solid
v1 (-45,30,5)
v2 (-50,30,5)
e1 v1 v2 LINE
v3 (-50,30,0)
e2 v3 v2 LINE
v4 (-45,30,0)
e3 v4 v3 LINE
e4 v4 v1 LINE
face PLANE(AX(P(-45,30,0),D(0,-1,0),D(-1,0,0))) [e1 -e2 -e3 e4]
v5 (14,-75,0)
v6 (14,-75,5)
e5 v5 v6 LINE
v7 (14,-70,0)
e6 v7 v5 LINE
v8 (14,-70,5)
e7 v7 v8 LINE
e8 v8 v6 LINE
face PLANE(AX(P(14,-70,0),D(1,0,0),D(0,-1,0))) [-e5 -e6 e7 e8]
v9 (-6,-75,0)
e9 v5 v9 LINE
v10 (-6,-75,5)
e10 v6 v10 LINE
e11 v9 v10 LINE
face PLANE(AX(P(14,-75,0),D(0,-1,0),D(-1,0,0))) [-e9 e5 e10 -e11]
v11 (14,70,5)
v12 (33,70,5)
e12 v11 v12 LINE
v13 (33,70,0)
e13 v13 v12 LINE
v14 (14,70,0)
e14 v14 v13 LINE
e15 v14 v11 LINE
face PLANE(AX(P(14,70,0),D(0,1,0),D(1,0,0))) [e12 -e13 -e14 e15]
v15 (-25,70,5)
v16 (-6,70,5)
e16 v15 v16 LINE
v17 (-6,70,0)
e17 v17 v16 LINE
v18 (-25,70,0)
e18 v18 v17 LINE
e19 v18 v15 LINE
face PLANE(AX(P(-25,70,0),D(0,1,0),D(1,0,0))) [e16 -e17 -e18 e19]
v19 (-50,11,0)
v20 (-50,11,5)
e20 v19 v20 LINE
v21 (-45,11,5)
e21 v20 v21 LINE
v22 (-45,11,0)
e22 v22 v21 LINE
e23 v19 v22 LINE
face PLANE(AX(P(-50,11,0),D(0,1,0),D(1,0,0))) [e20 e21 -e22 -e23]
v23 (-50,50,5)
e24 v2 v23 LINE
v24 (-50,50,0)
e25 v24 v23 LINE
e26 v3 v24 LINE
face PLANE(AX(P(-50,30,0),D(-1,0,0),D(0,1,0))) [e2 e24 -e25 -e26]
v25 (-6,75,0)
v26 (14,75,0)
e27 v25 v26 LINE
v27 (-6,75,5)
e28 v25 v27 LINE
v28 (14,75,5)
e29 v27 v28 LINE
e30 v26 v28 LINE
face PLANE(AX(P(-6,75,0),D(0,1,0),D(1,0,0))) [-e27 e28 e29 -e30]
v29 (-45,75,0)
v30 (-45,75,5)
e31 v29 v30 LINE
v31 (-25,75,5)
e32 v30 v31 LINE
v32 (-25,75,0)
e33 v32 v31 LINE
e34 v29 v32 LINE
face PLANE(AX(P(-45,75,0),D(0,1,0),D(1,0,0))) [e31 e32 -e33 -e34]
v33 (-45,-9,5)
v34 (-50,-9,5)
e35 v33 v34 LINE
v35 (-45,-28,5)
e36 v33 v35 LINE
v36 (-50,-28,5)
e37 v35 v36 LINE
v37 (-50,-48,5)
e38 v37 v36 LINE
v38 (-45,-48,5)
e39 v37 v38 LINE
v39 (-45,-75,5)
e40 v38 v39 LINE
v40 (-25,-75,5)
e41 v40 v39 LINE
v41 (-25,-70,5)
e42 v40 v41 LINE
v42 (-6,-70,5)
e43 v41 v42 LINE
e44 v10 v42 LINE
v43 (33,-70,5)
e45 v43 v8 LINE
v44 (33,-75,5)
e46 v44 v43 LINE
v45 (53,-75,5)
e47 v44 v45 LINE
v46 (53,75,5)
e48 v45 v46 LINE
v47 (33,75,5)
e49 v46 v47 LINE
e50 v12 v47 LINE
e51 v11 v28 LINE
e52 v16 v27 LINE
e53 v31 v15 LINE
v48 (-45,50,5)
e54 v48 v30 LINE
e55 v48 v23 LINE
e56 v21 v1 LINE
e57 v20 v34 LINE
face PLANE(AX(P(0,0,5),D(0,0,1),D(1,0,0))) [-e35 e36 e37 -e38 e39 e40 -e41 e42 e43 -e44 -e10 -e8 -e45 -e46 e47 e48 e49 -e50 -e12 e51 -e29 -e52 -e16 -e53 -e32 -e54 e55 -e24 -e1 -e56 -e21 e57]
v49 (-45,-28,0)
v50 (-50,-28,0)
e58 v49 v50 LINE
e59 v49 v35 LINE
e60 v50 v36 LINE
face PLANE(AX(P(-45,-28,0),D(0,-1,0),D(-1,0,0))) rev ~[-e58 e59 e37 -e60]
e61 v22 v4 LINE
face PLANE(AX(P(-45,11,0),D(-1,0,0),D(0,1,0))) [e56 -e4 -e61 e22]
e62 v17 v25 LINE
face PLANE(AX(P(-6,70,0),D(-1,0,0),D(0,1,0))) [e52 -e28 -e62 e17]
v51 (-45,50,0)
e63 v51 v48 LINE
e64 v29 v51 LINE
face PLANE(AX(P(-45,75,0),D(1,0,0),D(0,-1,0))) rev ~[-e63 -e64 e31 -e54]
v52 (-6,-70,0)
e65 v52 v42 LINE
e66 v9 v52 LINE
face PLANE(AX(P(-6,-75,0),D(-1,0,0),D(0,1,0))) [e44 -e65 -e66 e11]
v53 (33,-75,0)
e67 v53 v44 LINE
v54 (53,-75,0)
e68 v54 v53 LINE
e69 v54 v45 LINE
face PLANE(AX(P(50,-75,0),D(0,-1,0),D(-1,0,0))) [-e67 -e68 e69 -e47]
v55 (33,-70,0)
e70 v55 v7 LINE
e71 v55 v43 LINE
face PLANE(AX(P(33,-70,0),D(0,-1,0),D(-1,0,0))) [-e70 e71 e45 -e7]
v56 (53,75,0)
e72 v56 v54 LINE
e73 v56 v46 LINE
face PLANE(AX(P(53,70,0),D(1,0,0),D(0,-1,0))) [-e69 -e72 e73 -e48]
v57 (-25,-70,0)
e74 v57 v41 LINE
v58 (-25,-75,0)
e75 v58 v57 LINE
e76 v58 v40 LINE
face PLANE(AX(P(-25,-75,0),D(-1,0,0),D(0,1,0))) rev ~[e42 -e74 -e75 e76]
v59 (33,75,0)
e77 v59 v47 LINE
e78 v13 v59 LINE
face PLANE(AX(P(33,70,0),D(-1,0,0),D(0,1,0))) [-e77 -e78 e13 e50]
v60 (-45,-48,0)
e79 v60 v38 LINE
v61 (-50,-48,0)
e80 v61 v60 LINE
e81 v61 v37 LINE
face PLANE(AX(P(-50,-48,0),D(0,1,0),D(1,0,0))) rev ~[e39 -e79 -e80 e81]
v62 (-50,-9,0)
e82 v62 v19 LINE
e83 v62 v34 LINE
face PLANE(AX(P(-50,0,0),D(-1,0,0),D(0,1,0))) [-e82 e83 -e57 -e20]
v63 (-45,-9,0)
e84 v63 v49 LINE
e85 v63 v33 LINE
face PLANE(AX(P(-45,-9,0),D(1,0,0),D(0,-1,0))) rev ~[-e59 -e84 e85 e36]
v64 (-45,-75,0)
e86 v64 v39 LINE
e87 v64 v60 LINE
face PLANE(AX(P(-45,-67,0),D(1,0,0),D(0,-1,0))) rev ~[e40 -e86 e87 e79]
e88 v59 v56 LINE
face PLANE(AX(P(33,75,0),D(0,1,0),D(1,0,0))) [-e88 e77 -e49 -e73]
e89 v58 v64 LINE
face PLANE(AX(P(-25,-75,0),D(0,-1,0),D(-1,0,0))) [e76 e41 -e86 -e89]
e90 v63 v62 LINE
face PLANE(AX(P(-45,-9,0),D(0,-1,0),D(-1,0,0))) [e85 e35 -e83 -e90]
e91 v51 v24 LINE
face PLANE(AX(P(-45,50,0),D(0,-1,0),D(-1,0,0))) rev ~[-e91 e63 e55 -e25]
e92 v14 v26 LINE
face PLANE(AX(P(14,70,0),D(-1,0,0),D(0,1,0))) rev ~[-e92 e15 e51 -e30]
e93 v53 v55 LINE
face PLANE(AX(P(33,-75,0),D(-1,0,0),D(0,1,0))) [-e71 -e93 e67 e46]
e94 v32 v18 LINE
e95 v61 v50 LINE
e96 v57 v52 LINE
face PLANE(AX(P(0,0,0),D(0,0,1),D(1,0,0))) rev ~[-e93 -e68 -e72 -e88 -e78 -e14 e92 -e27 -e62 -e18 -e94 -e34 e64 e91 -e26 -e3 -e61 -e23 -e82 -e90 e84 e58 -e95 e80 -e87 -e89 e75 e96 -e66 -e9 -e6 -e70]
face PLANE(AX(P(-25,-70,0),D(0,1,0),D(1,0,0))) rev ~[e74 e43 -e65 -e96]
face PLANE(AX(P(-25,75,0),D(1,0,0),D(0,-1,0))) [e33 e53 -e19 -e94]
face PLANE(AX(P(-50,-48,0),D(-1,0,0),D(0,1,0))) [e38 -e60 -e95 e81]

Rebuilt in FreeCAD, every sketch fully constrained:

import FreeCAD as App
import Part
import Sketcher

V = App.Vector

doc = App.newDocument("Part")
body = doc.addObject("PartDesign::Body", "Body")

sketch1 = body.newObject("Sketcher::SketchObject", "Sketch")
sketch1.AttachmentSupport = (doc.getObject("XY_Plane"), [""])
sketch1.MapMode = "FlatFace"
sketch1.addGeometry([
    Part.LineSegment(V(-25, 75, 0), V(-45, 75, 0)),
    Part.LineSegment(V(-45, 75, 0), V(-45, 50, 0)),
    Part.LineSegment(V(-45, 50, 0), V(-50, 50, 0)),
    Part.LineSegment(V(-50, 50, 0), V(-50, 30, 0)),
    Part.LineSegment(V(-50, 30, 0), V(-45, 30, 0)),
    Part.LineSegment(V(-45, 30, 0), V(-45, 11, 0)),
    Part.LineSegment(V(-45, 11, 0), V(-50, 11, 0)),
    Part.LineSegment(V(-50, 11, 0), V(-50, -9, 0)),
    Part.LineSegment(V(-50, -9, 0), V(-45, -9, 0)),
    Part.LineSegment(V(-45, -9, 0), V(-45, -28, 0)),
    Part.LineSegment(V(-45, -28, 0), V(-50, -28, 0)),
    Part.LineSegment(V(-50, -28, 0), V(-50, -48, 0)),
    Part.LineSegment(V(-50, -48, 0), V(-45, -48, 0)),
    Part.LineSegment(V(-45, -48, 0), V(-45, -75, 0)),
    Part.LineSegment(V(-45, -75, 0), V(-25, -75, 0)),
    Part.LineSegment(V(-25, -75, 0), V(-25, -70, 0)),
    Part.LineSegment(V(-25, -70, 0), V(-6, -70, 0)),
    Part.LineSegment(V(-6, -70, 0), V(-6, -75, 0)),
    Part.LineSegment(V(-6, -75, 0), V(14, -75, 0)),
    Part.LineSegment(V(14, -75, 0), V(14, -70, 0)),
    Part.LineSegment(V(14, -70, 0), V(33, -70, 0)),
    Part.LineSegment(V(33, -70, 0), V(33, -75, 0)),
    Part.LineSegment(V(33, -75, 0), V(53, -75, 0)),
    Part.LineSegment(V(53, -75, 0), V(53, 75, 0)),
    Part.LineSegment(V(53, 75, 0), V(33, 75, 0)),
    Part.LineSegment(V(33, 75, 0), V(33, 70, 0)),
    Part.LineSegment(V(33, 70, 0), V(14, 70, 0)),
    Part.LineSegment(V(14, 70, 0), V(14, 75, 0)),
    Part.LineSegment(V(14, 75, 0), V(-6, 75, 0)),
    Part.LineSegment(V(-6, 75, 0), V(-6, 70, 0)),
    Part.LineSegment(V(-6, 70, 0), V(-25, 70, 0)),
    Part.LineSegment(V(-25, 70, 0), V(-25, 75, 0)),
], False)
sketch1.addConstraint([
    Sketcher.Constraint("Coincident", 0, 2, 1, 1),
    Sketcher.Constraint("Coincident", 1, 2, 2, 1),
    Sketcher.Constraint("Coincident", 2, 2, 3, 1),
    Sketcher.Constraint("Coincident", 3, 2, 4, 1),
    Sketcher.Constraint("Coincident", 4, 2, 5, 1),
    Sketcher.Constraint("Coincident", 5, 2, 6, 1),
    Sketcher.Constraint("Coincident", 6, 2, 7, 1),
    Sketcher.Constraint("Coincident", 7, 2, 8, 1),
    Sketcher.Constraint("Coincident", 8, 2, 9, 1),
    Sketcher.Constraint("Coincident", 9, 2, 10, 1),
    Sketcher.Constraint("Coincident", 10, 2, 11, 1),
    Sketcher.Constraint("Coincident", 11, 2, 12, 1),
    Sketcher.Constraint("Coincident", 12, 2, 13, 1),
    Sketcher.Constraint("Coincident", 13, 2, 14, 1),
    Sketcher.Constraint("Coincident", 14, 2, 15, 1),
    Sketcher.Constraint("Coincident", 15, 2, 16, 1),
    Sketcher.Constraint("Coincident", 16, 2, 17, 1),
    Sketcher.Constraint("Coincident", 17, 2, 18, 1),
    Sketcher.Constraint("Coincident", 18, 2, 19, 1),
    Sketcher.Constraint("Coincident", 19, 2, 20, 1),
    Sketcher.Constraint("Coincident", 20, 2, 21, 1),
    Sketcher.Constraint("Coincident", 21, 2, 22, 1),
    Sketcher.Constraint("Coincident", 22, 2, 23, 1),
    Sketcher.Constraint("Coincident", 23, 2, 24, 1),
    Sketcher.Constraint("Coincident", 24, 2, 25, 1),
    Sketcher.Constraint("Coincident", 25, 2, 26, 1),
    Sketcher.Constraint("Coincident", 26, 2, 27, 1),
    Sketcher.Constraint("Coincident", 27, 2, 28, 1),
    Sketcher.Constraint("Coincident", 28, 2, 29, 1),
    Sketcher.Constraint("Coincident", 29, 2, 30, 1),
    Sketcher.Constraint("Coincident", 30, 2, 31, 1),
    Sketcher.Constraint("Coincident", 31, 2, 0, 1),
    Sketcher.Constraint("Horizontal", 0),
    Sketcher.Constraint("Vertical", 1),
    Sketcher.Constraint("Horizontal", 2),
    Sketcher.Constraint("Vertical", 3),
    Sketcher.Constraint("Horizontal", 4),
    Sketcher.Constraint("Vertical", 5),
    Sketcher.Constraint("Horizontal", 6),
    Sketcher.Constraint("Vertical", 7),
    Sketcher.Constraint("Horizontal", 8),
    Sketcher.Constraint("Vertical", 9),
    Sketcher.Constraint("Horizontal", 10),
    Sketcher.Constraint("Vertical", 11),
    Sketcher.Constraint("Horizontal", 12),
    Sketcher.Constraint("Vertical", 13),
    Sketcher.Constraint("Horizontal", 14),
    Sketcher.Constraint("Vertical", 15),
    Sketcher.Constraint("Horizontal", 16),
    Sketcher.Constraint("Vertical", 17),
    Sketcher.Constraint("Horizontal", 18),
    Sketcher.Constraint("Vertical", 19),
    Sketcher.Constraint("Horizontal", 20),
    Sketcher.Constraint("Vertical", 21),
    Sketcher.Constraint("Horizontal", 22),
    Sketcher.Constraint("Vertical", 23),
    Sketcher.Constraint("Horizontal", 24),
    Sketcher.Constraint("Vertical", 25),
    Sketcher.Constraint("Horizontal", 26),
    Sketcher.Constraint("Vertical", 27),
    Sketcher.Constraint("Horizontal", 28),
    Sketcher.Constraint("Vertical", 29),
    Sketcher.Constraint("Horizontal", 30),
    Sketcher.Constraint("Vertical", 31),
    Sketcher.Constraint("Symmetric", 0, 2, 13, 2, -1),
    Sketcher.Constraint("Symmetric", 21, 2, 24, 2, -1),
    Sketcher.Constraint("Symmetric", 19, 2, 26, 2, -1),
    Sketcher.Constraint("Symmetric", 17, 2, 28, 2, -1),
    Sketcher.Constraint("Symmetric", 15, 2, 30, 2, -1),
    Sketcher.Constraint("Horizontal", 14, 2, 17, 2),
    Sketcher.Constraint("Horizontal", 16, 2, 19, 2),
    Sketcher.Constraint("Horizontal", 18, 2, 21, 2),
    Sketcher.Constraint("Vertical", 1, 2, 4, 2),
    Sketcher.Constraint("Vertical", 3, 2, 6, 2),
    Sketcher.Constraint("Vertical", 5, 2, 8, 2),
    Sketcher.Constraint("Vertical", 7, 2, 10, 2),
    Sketcher.Constraint("Equal", 14, 18),
    Sketcher.Constraint("Equal", 16, 20),
    Sketcher.Constraint("Equal", 18, 22),
    Sketcher.Constraint("Equal", 28, 3),
    Sketcher.Constraint("Equal", 30, 5),
    Sketcher.Constraint("Equal", 3, 7),
    Sketcher.Constraint("Equal", 5, 9),
    Sketcher.Constraint("Equal", 7, 11),
    Sketcher.Constraint("Equal", 12, 15),
    Sketcher.Constraint("DistanceX", 0, 2, 0, 1, 20.0),
    Sketcher.Constraint("DistanceX", 2, 2, 2, 1, 5.0),
    Sketcher.Constraint("DistanceX", 16, 1, 16, 2, 19.0),
    Sketcher.Constraint("DistanceY", 1, 2, 1, 1, 25.0),
    Sketcher.Constraint("DistanceY", 23, 1, 23, 2, 150.0),
    Sketcher.Constraint("DistanceX", 2, 2, -1, 1, 50.0),
])
pad1 = body.newObject("PartDesign::Pad", "Pad")
pad1.Profile = sketch1
pad1.Length = 5

doc.recompute()
